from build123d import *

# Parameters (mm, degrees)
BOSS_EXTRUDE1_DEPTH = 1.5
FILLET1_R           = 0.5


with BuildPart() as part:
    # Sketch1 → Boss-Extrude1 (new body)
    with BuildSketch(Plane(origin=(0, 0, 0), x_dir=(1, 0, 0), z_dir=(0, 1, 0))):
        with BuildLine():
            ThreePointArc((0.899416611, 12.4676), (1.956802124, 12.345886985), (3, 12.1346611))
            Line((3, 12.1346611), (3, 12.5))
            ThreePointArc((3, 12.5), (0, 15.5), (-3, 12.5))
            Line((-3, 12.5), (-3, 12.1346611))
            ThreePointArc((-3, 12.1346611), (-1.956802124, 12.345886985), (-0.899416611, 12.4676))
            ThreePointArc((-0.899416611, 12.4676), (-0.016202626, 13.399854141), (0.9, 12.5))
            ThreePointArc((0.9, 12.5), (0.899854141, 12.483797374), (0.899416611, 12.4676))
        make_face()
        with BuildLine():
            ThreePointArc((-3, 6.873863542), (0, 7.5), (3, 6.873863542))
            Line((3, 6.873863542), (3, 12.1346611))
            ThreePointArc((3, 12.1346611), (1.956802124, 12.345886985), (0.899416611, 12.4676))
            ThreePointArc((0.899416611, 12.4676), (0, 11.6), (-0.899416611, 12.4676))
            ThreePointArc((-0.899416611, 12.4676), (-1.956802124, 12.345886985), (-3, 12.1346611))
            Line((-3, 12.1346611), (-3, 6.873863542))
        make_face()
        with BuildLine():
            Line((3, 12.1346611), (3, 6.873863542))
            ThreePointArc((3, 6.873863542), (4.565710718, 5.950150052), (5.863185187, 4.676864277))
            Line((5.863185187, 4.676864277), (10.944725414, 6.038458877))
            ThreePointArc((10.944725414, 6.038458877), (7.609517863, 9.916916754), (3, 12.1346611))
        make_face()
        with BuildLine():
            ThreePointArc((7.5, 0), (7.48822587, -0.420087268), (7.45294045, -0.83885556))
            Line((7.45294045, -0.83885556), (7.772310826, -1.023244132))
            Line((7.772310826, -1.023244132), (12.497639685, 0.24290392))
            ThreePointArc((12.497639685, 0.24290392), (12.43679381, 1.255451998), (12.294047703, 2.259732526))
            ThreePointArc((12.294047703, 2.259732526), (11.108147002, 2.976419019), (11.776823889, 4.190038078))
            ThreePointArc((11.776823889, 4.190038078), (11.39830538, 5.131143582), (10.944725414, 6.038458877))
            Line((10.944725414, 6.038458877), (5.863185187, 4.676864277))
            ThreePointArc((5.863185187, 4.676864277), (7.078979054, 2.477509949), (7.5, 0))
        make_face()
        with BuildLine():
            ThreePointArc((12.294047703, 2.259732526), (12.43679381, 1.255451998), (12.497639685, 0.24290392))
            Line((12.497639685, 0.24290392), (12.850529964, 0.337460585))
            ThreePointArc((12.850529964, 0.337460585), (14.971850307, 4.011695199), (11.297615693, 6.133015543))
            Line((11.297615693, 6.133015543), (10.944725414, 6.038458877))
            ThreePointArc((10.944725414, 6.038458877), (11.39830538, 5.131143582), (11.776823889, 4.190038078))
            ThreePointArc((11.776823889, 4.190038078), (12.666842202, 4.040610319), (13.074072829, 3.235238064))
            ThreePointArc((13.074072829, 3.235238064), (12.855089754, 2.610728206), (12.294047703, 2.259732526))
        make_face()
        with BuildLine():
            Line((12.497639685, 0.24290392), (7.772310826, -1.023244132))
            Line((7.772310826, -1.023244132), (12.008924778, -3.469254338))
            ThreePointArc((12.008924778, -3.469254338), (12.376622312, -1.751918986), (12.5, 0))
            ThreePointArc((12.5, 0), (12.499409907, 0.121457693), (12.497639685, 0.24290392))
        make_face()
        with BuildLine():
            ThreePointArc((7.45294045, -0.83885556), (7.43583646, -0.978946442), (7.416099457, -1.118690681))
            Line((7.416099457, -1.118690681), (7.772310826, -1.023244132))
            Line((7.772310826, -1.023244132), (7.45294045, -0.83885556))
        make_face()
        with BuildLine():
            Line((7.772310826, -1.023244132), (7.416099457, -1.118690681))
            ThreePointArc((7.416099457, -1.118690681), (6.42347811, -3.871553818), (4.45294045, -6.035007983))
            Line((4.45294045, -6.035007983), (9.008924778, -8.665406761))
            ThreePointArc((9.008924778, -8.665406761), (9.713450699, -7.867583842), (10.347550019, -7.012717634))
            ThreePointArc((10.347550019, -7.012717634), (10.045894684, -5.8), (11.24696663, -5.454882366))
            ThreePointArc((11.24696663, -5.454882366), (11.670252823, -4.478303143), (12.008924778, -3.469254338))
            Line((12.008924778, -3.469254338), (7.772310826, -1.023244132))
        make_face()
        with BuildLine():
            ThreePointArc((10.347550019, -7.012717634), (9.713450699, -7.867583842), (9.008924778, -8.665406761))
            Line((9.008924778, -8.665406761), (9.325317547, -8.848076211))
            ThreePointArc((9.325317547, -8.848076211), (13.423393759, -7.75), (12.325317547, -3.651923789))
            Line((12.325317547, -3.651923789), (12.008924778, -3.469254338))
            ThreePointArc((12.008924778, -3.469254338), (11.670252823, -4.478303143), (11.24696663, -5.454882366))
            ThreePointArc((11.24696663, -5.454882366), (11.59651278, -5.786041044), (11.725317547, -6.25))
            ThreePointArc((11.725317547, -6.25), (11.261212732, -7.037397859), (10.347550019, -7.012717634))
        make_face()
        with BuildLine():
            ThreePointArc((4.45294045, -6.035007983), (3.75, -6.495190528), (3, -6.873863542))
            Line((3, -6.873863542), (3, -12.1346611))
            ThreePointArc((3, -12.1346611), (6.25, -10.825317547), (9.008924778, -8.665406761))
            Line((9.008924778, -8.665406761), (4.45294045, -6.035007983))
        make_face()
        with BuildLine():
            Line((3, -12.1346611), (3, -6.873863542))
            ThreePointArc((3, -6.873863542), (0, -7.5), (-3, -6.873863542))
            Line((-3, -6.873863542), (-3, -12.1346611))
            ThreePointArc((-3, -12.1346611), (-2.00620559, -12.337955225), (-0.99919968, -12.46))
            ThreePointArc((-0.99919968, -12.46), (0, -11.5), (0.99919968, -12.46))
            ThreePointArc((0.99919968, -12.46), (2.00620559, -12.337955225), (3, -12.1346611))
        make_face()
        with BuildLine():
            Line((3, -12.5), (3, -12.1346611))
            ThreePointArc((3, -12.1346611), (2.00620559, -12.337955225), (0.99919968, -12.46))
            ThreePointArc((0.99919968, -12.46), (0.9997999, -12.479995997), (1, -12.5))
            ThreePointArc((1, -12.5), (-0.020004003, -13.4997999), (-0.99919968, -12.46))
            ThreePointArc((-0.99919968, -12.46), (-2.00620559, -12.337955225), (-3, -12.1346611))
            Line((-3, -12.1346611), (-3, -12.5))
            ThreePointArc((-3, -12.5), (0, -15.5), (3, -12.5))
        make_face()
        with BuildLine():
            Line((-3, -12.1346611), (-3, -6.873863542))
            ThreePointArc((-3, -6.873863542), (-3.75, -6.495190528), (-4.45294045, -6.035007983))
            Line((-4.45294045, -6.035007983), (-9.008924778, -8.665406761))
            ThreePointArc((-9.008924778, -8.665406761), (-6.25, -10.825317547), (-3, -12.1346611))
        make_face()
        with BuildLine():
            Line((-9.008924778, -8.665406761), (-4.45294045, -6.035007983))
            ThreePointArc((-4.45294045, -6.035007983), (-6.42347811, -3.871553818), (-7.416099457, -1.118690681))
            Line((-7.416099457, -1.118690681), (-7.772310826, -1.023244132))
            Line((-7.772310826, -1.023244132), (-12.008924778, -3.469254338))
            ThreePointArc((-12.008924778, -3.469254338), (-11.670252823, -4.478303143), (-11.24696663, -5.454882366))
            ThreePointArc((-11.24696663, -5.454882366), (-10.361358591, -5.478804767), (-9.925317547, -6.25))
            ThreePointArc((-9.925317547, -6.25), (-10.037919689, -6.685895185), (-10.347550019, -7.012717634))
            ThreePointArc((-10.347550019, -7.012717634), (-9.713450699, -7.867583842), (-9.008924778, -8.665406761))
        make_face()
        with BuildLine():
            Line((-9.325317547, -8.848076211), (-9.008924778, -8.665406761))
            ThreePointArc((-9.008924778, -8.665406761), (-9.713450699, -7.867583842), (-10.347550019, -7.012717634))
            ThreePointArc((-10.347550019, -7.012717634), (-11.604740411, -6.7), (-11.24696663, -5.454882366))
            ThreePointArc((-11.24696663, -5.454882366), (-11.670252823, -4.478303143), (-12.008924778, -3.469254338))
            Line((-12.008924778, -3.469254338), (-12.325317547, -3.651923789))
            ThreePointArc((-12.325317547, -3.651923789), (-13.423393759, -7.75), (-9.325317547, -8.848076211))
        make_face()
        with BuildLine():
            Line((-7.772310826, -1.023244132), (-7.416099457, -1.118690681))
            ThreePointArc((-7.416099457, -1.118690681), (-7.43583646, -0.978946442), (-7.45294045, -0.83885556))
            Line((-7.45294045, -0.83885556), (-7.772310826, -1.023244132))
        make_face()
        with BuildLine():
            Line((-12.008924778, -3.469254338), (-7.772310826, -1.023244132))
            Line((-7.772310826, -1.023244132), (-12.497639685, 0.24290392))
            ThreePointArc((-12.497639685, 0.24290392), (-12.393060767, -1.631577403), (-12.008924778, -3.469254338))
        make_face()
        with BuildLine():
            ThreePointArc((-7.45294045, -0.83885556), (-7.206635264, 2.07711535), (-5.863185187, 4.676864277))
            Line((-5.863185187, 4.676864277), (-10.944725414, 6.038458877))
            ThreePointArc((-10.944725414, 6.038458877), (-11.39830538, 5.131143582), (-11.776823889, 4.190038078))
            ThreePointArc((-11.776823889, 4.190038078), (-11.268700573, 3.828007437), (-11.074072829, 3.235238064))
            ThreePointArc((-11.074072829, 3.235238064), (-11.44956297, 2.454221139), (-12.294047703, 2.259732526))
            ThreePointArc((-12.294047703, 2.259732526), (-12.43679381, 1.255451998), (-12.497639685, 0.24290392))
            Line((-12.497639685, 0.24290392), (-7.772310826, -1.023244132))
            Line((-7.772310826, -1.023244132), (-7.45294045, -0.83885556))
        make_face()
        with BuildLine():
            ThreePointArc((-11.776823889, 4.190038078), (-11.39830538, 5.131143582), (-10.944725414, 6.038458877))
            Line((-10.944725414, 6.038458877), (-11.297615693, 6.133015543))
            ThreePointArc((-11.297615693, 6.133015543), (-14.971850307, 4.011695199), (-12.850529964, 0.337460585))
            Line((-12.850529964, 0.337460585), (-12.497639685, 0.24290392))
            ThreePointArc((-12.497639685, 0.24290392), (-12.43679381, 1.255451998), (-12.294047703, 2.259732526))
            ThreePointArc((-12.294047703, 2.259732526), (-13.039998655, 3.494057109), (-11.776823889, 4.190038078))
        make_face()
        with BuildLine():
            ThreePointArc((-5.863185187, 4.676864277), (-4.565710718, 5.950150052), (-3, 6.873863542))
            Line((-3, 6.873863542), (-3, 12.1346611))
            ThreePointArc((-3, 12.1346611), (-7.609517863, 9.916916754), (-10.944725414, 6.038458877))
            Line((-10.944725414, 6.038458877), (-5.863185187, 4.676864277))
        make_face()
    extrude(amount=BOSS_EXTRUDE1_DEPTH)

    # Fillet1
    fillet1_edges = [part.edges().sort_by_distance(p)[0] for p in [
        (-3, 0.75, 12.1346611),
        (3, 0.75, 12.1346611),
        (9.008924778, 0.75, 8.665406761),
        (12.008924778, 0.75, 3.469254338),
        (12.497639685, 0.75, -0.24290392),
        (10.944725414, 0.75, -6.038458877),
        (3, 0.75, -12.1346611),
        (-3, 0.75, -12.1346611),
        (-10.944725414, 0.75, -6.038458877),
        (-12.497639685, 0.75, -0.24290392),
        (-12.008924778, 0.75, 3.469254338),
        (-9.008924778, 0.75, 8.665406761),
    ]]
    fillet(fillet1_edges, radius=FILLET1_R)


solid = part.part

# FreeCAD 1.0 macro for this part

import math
import FreeCAD as App
import Part
import Sketcher

V = App.Vector
Q = App.Units.Quantity


def edges_at(feature, points):
    """Names of the edges that pass closest to the given points."""
    edges = feature.Shape.Edges
    near = lambda p: min(range(len(edges)), key=lambda i: edges[i].distToShape(Part.Vertex(*p))[0])
    return sorted({f"Edge{near(p) + 1}" for p in points})

doc = App.newDocument("Part")
body = doc.addObject("PartDesign::Body", "Body")

# Sketch on XZ plane
sketch1 = doc.addObject("Sketcher::SketchObject", "Sketch")
body.addObject(sketch1)
sketch1.AttachmentSupport = (doc.XZ_Plane, [""])
sketch1.MapMode = "FlatFace"
sketch1.addGeometry(Part.ArcOfCircle(Part.Circle(V(0, -12.5, 0), V(0, 0, 1), 3), math.radians(180), math.radians(360)), False)
sketch1.addGeometry(Part.LineSegment(V(-3, -12.5, 0), V(-3, -12.135, 0)), False)
sketch1.addGeometry(Part.ArcOfCircle(Part.Circle(V(0, 0, 0), V(0, 0, 1), 12.5), math.radians(-151), math.radians(-104)), False)
sketch1.addGeometry(Part.LineSegment(V(-10.945, -6.038, 0), V(-11.298, -6.133, 0)), False)
sketch1.addGeometry(Part.ArcOfCircle(Part.Circle(V(-12.074, -3.235, 0), V(0, 0, 1), 3), math.radians(105), math.radians(285)), False)
sketch1.addGeometry(Part.LineSegment(V(-12.851, -0.337, 0), V(-12.498, -0.243, 0)), False)
sketch1.addGeometry(Part.ArcOfCircle(Part.Circle(V(0, 0, 0), V(0, 0, 1), 12.5), math.radians(163.89), math.radians(181.11)), False)
sketch1.addGeometry(Part.LineSegment(V(-12.009, 3.469, 0), V(-12.325, 3.652, 0)), False)
sketch1.addGeometry(Part.ArcOfCircle(Part.Circle(V(-10.825, 6.25, 0), V(0, 0, 1), 3), math.radians(60), math.radians(240)), False)
sketch1.addGeometry(Part.LineSegment(V(-9.325, 8.848, 0), V(-9.009, 8.665, 0)), False)
sketch1.addGeometry(Part.ArcOfCircle(Part.Circle(V(0, 0, 0), V(0, 0, 1), 12.5), math.radians(104), math.radians(136)), False)
sketch1.addGeometry(Part.LineSegment(V(-3, 12.135, 0), V(-3, 12.5, 0)), False)
sketch1.addGeometry(Part.ArcOfCircle(Part.Circle(V(0, 12.5, 0), V(0, 0, 1), 3), math.radians(0), math.radians(180)), False)
sketch1.addGeometry(Part.LineSegment(V(3, 12.5, 0), V(3, 12.135, 0)), False)
sketch1.addGeometry(Part.ArcOfCircle(Part.Circle(V(0, 0, 0), V(0, 0, 1), 12.5), math.radians(44), math.radians(76)), False)
sketch1.addGeometry(Part.LineSegment(V(9.009, 8.665, 0), V(9.325, 8.848, 0)), False)
sketch1.addGeometry(Part.ArcOfCircle(Part.Circle(V(10.825, 6.25, 0), V(0, 0, 1), 3), math.radians(-60), math.radians(120)), False)
sketch1.addGeometry(Part.LineSegment(V(12.325, 3.652, 0), V(12.009, 3.469, 0)), False)
sketch1.addGeometry(Part.ArcOfCircle(Part.Circle(V(0, 0, 0), V(0, 0, 1), 12.5), math.radians(0), math.radians(16.11)), False)
sketch1.addGeometry(Part.ArcOfCircle(Part.Circle(V(0, 0, 0), V(0, 0, 1), 12.5), math.radians(-1.11), math.radians(0)), False)
sketch1.addGeometry(Part.LineSegment(V(12.498, -0.243, 0), V(12.851, -0.337, 0)), False)
sketch1.addGeometry(Part.ArcOfCircle(Part.Circle(V(12.074, -3.235, 0), V(0, 0, 1), 3), math.radians(-105), math.radians(75)), False)
sketch1.addGeometry(Part.LineSegment(V(11.298, -6.133, 0), V(10.945, -6.038, 0)), False)
sketch1.addGeometry(Part.ArcOfCircle(Part.Circle(V(0, 0, 0), V(0, 0, 1), 12.5), math.radians(-76), math.radians(-29)), False)
sketch1.addGeometry(Part.LineSegment(V(3, -12.135, 0), V(3, -12.5, 0)), False)
sketch1.addGeometry(Part.ArcOfCircle(Part.Circle(V(0, 0, 0), V(0, 0, 1), 7.5), math.radians(-114), math.radians(-66)), False)
sketch1.addGeometry(Part.ArcOfCircle(Part.Circle(V(0, 0, 0), V(0, 0, 1), 7.5), math.radians(-66), math.radians(-39)), False)
sketch1.addGeometry(Part.ArcOfCircle(Part.Circle(V(0, 0, 0), V(0, 0, 1), 7.5), math.radians(-39), math.radians(0)), False)
sketch1.addGeometry(Part.ArcOfCircle(Part.Circle(V(0, 0, 0), V(0, 0, 1), 7.5), math.radians(0), math.radians(6.42)), False)
sketch1.addGeometry(Part.ArcOfCircle(Part.Circle(V(0, 0, 0), V(0, 0, 1), 7.5), math.radians(6.42), math.radians(8.58)), False)
sketch1.addGeometry(Part.ArcOfCircle(Part.Circle(V(0, 0, 0), V(0, 0, 1), 7.5), math.radians(9), math.radians(54)), False)
sketch1.addGeometry(Part.ArcOfCircle(Part.Circle(V(0, 0, 0), V(0, 0, 1), 7.5), math.radians(53.58), math.radians(66.42)), False)
sketch1.addGeometry(Part.ArcOfCircle(Part.Circle(V(0, 0, 0), V(0, 0, 1), 7.5), math.radians(66), math.radians(114)), False)
sketch1.addGeometry(Part.ArcOfCircle(Part.Circle(V(0, 0, 0), V(0, 0, 1), 7.5), math.radians(113.58), math.radians(126.42)), False)
sketch1.addGeometry(Part.ArcOfCircle(Part.Circle(V(0, 0, 0), V(0, 0, 1), 7.5), math.radians(126), math.radians(171)), False)
sketch1.addGeometry(Part.ArcOfCircle(Part.Circle(V(0, 0, 0), V(0, 0, 1), 7.5), math.radians(171.42), math.radians(173.58)), False)
sketch1.addGeometry(Part.ArcOfCircle(Part.Circle(V(0, 0, 0), V(0, 0, 1), 7.5), math.radians(174), math.radians(219)), False)
sketch1.addGeometry(Part.ArcOfCircle(Part.Circle(V(0, 0, 0), V(0, 0, 1), 7.5), math.radians(-141), math.radians(-114)), False)
sketch1.addGeometry(Part.ArcOfCircle(Part.Circle(V(-12.074, -3.235, 0), V(0, 0, 1), 1), math.radians(-73), math.radians(0)), False)
sketch1.addGeometry(Part.ArcOfCircle(Part.Circle(V(-12.074, -3.235, 0), V(0, 0, 1), 1), math.radians(0), math.radians(103)), False)
sketch1.addGeometry(Part.ArcOfCircle(Part.Circle(V(-12.074, -3.235, 0), V(0, 0, 1), 1), math.radians(103), math.radians(287)), False)
sketch1.addGeometry(Part.ArcOfCircle(Part.Circle(V(-10.825, 6.25, 0), V(0, 0, 1), 0.9), math.radians(-118), math.radians(0)), False)
sketch1.addGeometry(Part.ArcOfCircle(Part.Circle(V(-10.825, 6.25, 0), V(0, 0, 1), 0.9), math.radians(0), math.radians(58)), False)
sketch1.addGeometry(Part.ArcOfCircle(Part.Circle(V(-10.825, 6.25, 0), V(0, 0, 1), 0.9), math.radians(58), math.radians(242)), False)
sketch1.addGeometry(Part.ArcOfCircle(Part.Circle(V(0, 12.5, 0), V(0, 0, 1), 1), math.radians(-178), math.radians(-2)), False)
sketch1.addGeometry(Part.ArcOfCircle(Part.Circle(V(0, 12.5, 0), V(0, 0, 1), 1), math.radians(-2.29), math.radians(0)), False)
sketch1.addGeometry(Part.ArcOfCircle(Part.Circle(V(0, 12.5, 0), V(0, 0, 1), 1), math.radians(0), math.radians(182)), False)
sketch1.addGeometry(Part.ArcOfCircle(Part.Circle(V(10.825, 6.25, 0), V(0, 0, 1), 0.9), math.radians(122), math.radians(298)), False)
sketch1.addGeometry(Part.ArcOfCircle(Part.Circle(V(10.825, 6.25, 0), V(0, 0, 1), 0.9), math.radians(-62), math.radians(0)), False)
sketch1.addGeometry(Part.ArcOfCircle(Part.Circle(V(10.825, 6.25, 0), V(0, 0, 1), 0.9), math.radians(0), math.radians(122)), False)
sketch1.addGeometry(Part.ArcOfCircle(Part.Circle(V(12.074, -3.235, 0), V(0, 0, 1), 1), math.radians(77), math.radians(253)), False)
sketch1.addGeometry(Part.ArcOfCircle(Part.Circle(V(12.074, -3.235, 0), V(0, 0, 1), 1), math.radians(-107), math.radians(0)), False)
sketch1.addGeometry(Part.ArcOfCircle(Part.Circle(V(12.074, -3.235, 0), V(0, 0, 1), 1), math.radians(0), math.radians(77)), False)
sketch1.addGeometry(Part.ArcOfCircle(Part.Circle(V(0, -12.5, 0), V(0, 0, 1), 0.9), math.radians(178), math.radians(360)), False)
sketch1.addGeometry(Part.ArcOfCircle(Part.Circle(V(0, -12.5, 0), V(0, 0, 1), 0.9), math.radians(0), math.radians(2.06)), False)
sketch1.addGeometry(Part.ArcOfCircle(Part.Circle(V(0, -12.5, 0), V(0, 0, 1), 0.9), math.radians(2), math.radians(178)), False)
sketch1.addConstraint(Sketcher.Constraint("Tangent", 0, 1, 1, 1))
sketch1.addConstraint(Sketcher.Constraint("Coincident", 1, 2, 2, 2))
sketch1.addConstraint(Sketcher.Constraint("Coincident", 2, 1, 3, 1))
sketch1.addConstraint(Sketcher.Constraint("Tangent", 3, 2, 4, 2))
sketch1.addConstraint(Sketcher.Constraint("Tangent", 4, 1, 5, 1))
sketch1.addConstraint(Sketcher.Constraint("Coincident", 5, 2, 6, 2))
sketch1.addConstraint(Sketcher.Constraint("Coincident", 6, 1, 7, 1))
sketch1.addConstraint(Sketcher.Constraint("Tangent", 7, 2, 8, 2))
sketch1.addConstraint(Sketcher.Constraint("Tangent", 8, 1, 9, 1))
sketch1.addConstraint(Sketcher.Constraint("Coincident", 9, 2, 10, 2))
sketch1.addConstraint(Sketcher.Constraint("Coincident", 10, 1, 11, 1))
sketch1.addConstraint(Sketcher.Constraint("Tangent", 11, 2, 12, 2))
sketch1.addConstraint(Sketcher.Constraint("Tangent", 12, 1, 13, 1))
sketch1.addConstraint(Sketcher.Constraint("Coincident", 13, 2, 14, 2))
sketch1.addConstraint(Sketcher.Constraint("Coincident", 14, 1, 15, 1))
sketch1.addConstraint(Sketcher.Constraint("Tangent", 15, 2, 16, 2))
sketch1.addConstraint(Sketcher.Constraint("Tangent", 16, 1, 17, 1))
sketch1.addConstraint(Sketcher.Constraint("Coincident", 17, 2, 18, 2))
sketch1.addConstraint(Sketcher.Constraint("Tangent", 18, 1, 19, 2))
sketch1.addConstraint(Sketcher.Constraint("Coincident", 19, 1, 20, 1))
sketch1.addConstraint(Sketcher.Constraint("Tangent", 20, 2, 21, 2))
sketch1.addConstraint(Sketcher.Constraint("Tangent", 21, 1, 22, 1))
sketch1.addConstraint(Sketcher.Constraint("Coincident", 22, 2, 23, 2))
sketch1.addConstraint(Sketcher.Constraint("Coincident", 23, 1, 24, 1))
sketch1.addConstraint(Sketcher.Constraint("Tangent", 24, 2, 0, 2))
sketch1.addConstraint(Sketcher.Constraint("Tangent", 25, 2, 26, 1))
sketch1.addConstraint(Sketcher.Constraint("Tangent", 26, 2, 27, 1))
sketch1.addConstraint(Sketcher.Constraint("Tangent", 27, 2, 28, 1))
sketch1.addConstraint(Sketcher.Constraint("Tangent", 28, 2, 29, 1))
sketch1.addConstraint(Sketcher.Constraint("Tangent", 29, 2, 30, 1))
sketch1.addConstraint(Sketcher.Constraint("Tangent", 30, 2, 31, 1))
sketch1.addConstraint(Sketcher.Constraint("Tangent", 31, 2, 32, 1))
sketch1.addConstraint(Sketcher.Constraint("Tangent", 32, 2, 33, 1))
sketch1.addConstraint(Sketcher.Constraint("Tangent", 33, 2, 34, 1))
sketch1.addConstraint(Sketcher.Constraint("Tangent", 34, 2, 35, 1))
sketch1.addConstraint(Sketcher.Constraint("Tangent", 35, 2, 36, 1))
sketch1.addConstraint(Sketcher.Constraint("Tangent", 36, 2, 37, 1))
sketch1.addConstraint(Sketcher.Constraint("Tangent", 37, 2, 25, 1))
sketch1.addConstraint(Sketcher.Constraint("Tangent", 38, 2, 39, 1))
sketch1.addConstraint(Sketcher.Constraint("Tangent", 39, 2, 40, 1))
sketch1.addConstraint(Sketcher.Constraint("Tangent", 40, 2, 38, 1))
sketch1.addConstraint(Sketcher.Constraint("Tangent", 41, 2, 42, 1))
sketch1.addConstraint(Sketcher.Constraint("Tangent", 42, 2, 43, 1))
sketch1.addConstraint(Sketcher.Constraint("Tangent", 43, 2, 41, 1))
sketch1.addConstraint(Sketcher.Constraint("Tangent", 44, 2, 45, 1))
sketch1.addConstraint(Sketcher.Constraint("Tangent", 45, 2, 46, 1))
sketch1.addConstraint(Sketcher.Constraint("Tangent", 46, 2, 44, 1))
sketch1.addConstraint(Sketcher.Constraint("Tangent", 47, 2, 48, 1))
sketch1.addConstraint(Sketcher.Constraint("Tangent", 48, 2, 49, 1))
sketch1.addConstraint(Sketcher.Constraint("Tangent", 49, 2, 47, 1))
sketch1.addConstraint(Sketcher.Constraint("Tangent", 50, 2, 51, 1))
sketch1.addConstraint(Sketcher.Constraint("Tangent", 51, 2, 52, 1))
sketch1.addConstraint(Sketcher.Constraint("Tangent", 52, 2, 50, 1))
sketch1.addConstraint(Sketcher.Constraint("Tangent", 53, 2, 54, 1))
sketch1.addConstraint(Sketcher.Constraint("Tangent", 54, 2, 55, 1))
sketch1.addConstraint(Sketcher.Constraint("Tangent", 55, 2, 53, 1))
sketch1.addConstraint(Sketcher.Constraint("Vertical", 1))
sketch1.addConstraint(Sketcher.Constraint("Vertical", 11))
sketch1.addConstraint(Sketcher.Constraint("Vertical", 13))
sketch1.addConstraint(Sketcher.Constraint("Vertical", 24))
sketch1.addConstraint(Sketcher.Constraint("Coincident", 2, 3, -1, 1))
sketch1.addConstraint(Sketcher.Constraint("Coincident", 6, 3, -1, 1))
sketch1.addConstraint(Sketcher.Constraint("Coincident", 10, 3, -1, 1))
sketch1.addConstraint(Sketcher.Constraint("Coincident", 14, 3, -1, 1))
sketch1.addConstraint(Sketcher.Constraint("Coincident", 18, 3, -1, 1))
sketch1.addConstraint(Sketcher.Constraint("Coincident", 23, 3, -1, 1))
sketch1.addConstraint(Sketcher.Constraint("Coincident", 25, 3, -1, 1))
sketch1.addConstraint(Sketcher.Constraint("Coincident", 27, 3, -1, 1))
sketch1.addConstraint(Sketcher.Constraint("Coincident", 29, 3, -1, 1))
sketch1.addConstraint(Sketcher.Constraint("Coincident", 31, 3, -1, 1))
sketch1.addConstraint(Sketcher.Constraint("Coincident", 33, 3, -1, 1))
sketch1.addConstraint(Sketcher.Constraint("Coincident", 35, 3, -1, 1))
sketch1.addConstraint(Sketcher.Constraint("Coincident", 38, 3, 4, 3))
sketch1.addConstraint(Sketcher.Constraint("Coincident", 41, 3, 8, 3))
sketch1.addConstraint(Sketcher.Constraint("Coincident", 44, 3, 12, 3))
sketch1.addConstraint(Sketcher.Constraint("Coincident", 47, 3, 16, 3))
sketch1.addConstraint(Sketcher.Constraint("Coincident", 50, 3, 21, 3))
sketch1.addConstraint(Sketcher.Constraint("Coincident", 53, 3, 0, 3))
sketch1.addConstraint(Sketcher.Constraint("Equal", 0, 4))
sketch1.addConstraint(Sketcher.Constraint("Equal", 2, 6))
sketch1.addConstraint(Sketcher.Constraint("Equal", 4, 8))
sketch1.addConstraint(Sketcher.Constraint("Equal", 6, 10))
sketch1.addConstraint(Sketcher.Constraint("Equal", 8, 12))
sketch1.addConstraint(Sketcher.Constraint("Equal", 10, 14))
sketch1.addConstraint(Sketcher.Constraint("Equal", 12, 16))
sketch1.addConstraint(Sketcher.Constraint("Equal", 14, 18))
sketch1.addConstraint(Sketcher.Constraint("Equal", 16, 21))
sketch1.addConstraint(Sketcher.Constraint("Equal", 18, 23))
sketch1.addConstraint(Sketcher.Constraint("Equal", 40, 44))
sketch1.addConstraint(Sketcher.Constraint("Equal", 43, 47))
sketch1.addConstraint(Sketcher.Constraint("Equal", 46, 50))
sketch1.addConstraint(Sketcher.Constraint("Equal", 49, 53))
sketch1.addConstraint(Sketcher.Constraint("Symmetric", 0, 3, 12, 3, -1, 1))
sketch1.addConstraint(Sketcher.Constraint("Symmetric", 8, 3, 16, 3, -2))
sketch1.addConstraint(Sketcher.Constraint("Symmetric", 4, 3, 21, 3, -2))
sketch1.addConstraint(Sketcher.Constraint("Symmetric", 44, 2, 46, 2, -2))
sketch1.addConstraint(Sketcher.Constraint("PointOnObject", 18, 1, -1))
sketch1.addConstraint(Sketcher.Constraint("PointOnObject", 27, 2, -1))
sketch1.addConstraint(Sketcher.Constraint("Parallel", 3, 5))
sketch1.addConstraint(Sketcher.Constraint("Parallel", 7, 9))
sketch1.addConstraint(Sketcher.Constraint("Parallel", 15, 17))
sketch1.addConstraint(Sketcher.Constraint("Parallel", 20, 22))
sketch1.addConstraint(Sketcher.Constraint("Horizontal", 9, 2, 14, 1))
sketch1.addConstraint(Sketcher.Constraint("Horizontal", 5, 2, 19, 1))
sketch1.addConstraint(Sketcher.Constraint("Horizontal", 31, 2, 32, 2))
sketch1.addConstraint(Sketcher.Constraint("Horizontal", 30, 2, 33, 2))
sketch1.addConstraint(Sketcher.Constraint("Horizontal", 29, 2, 34, 2))
sketch1.addConstraint(Sketcher.Constraint("Horizontal", 28, 2, 35, 2))
sketch1.addConstraint(Sketcher.Constraint("Horizontal", 26, 2, 36, 2))
sketch1.addConstraint(Sketcher.Constraint("Horizontal", 25, 2, 37, 2))
sketch1.addConstraint(Sketcher.Constraint("Horizontal", 52, 3, 38, 2))
sketch1.addConstraint(Sketcher.Constraint("Horizontal", 49, 3, 41, 2))
sketch1.addConstraint(Sketcher.Constraint("Horizontal", 12, 1, 45, 2))
sketch1.addConstraint(Sketcher.Constraint("Horizontal", 43, 2, 47, 2))
sketch1.addConstraint(Sketcher.Constraint("Horizontal", 41, 2, 48, 2))
sketch1.addConstraint(Sketcher.Constraint("Horizontal", 42, 2, 49, 2))
sketch1.addConstraint(Sketcher.Constraint("Horizontal", 40, 2, 50, 2))
sketch1.addConstraint(Sketcher.Constraint("Horizontal", 38, 2, 51, 2))
sketch1.addConstraint(Sketcher.Constraint("Horizontal", 39, 2, 52, 2))
sketch1.addConstraint(Sketcher.Constraint("Horizontal", 24, 2, 53, 2))
sketch1.addConstraint(Sketcher.Constraint("Horizontal", 54, 2, 55, 2))
sketch1.addConstraint(Sketcher.Constraint("Vertical", 24, 2, 25, 2))
sketch1.addConstraint(Sketcher.Constraint("Vertical", 25, 2, 31, 2))
sketch1.addConstraint(Sketcher.Constraint("Equal", 3, 5))
sketch1.addConstraint(Sketcher.Constraint("Equal", 5, 7))
sketch1.addConstraint(Sketcher.Constraint("Equal", 7, 9))
sketch1.addConstraint(Sketcher.Constraint("Radius", 0, 3.0))
sketch1.addConstraint(Sketcher.Constraint("Radius", 38, 1.0))
sketch1.addConstraint(Sketcher.Constraint("Radius", 2, 12.5))
sketch1.addConstraint(Sketcher.Constraint("Radius", 25, 7.5))
sketch1.addConstraint(Sketcher.Constraint("Radius", 41, 0.9))
sketch1.addConstraint(Sketcher.Constraint("Angle", 3, Q("-165 deg")))
sketch1.addConstraint(Sketcher.Constraint("Angle", 7, Q("150 deg")))
sketch1.addConstraint(Sketcher.Constraint("DistanceY", 0, 3, -1, 1, 12.5))
sketch1.addConstraint(Sketcher.Constraint("DistanceY", -1, 1, 8, 3, 6.25))
sketch1.addConstraint(Sketcher.Constraint("DistanceY", -1, 1, 44, 2, 12.46))
sketch1.addConstraint(Sketcher.Constraint("Radius", 19, 12.500009))
sketch1.addConstraint(Sketcher.Constraint("DistanceX", -1, 1, 29, 2, 7.416099))
sketch1.addConstraint(Sketcher.Constraint("DistanceY", 54, 2, -1, 1, 12.4676))
sketch1.addConstraint(Sketcher.Constraint("DistanceX", -1, 1, 28, 2, 7.45294))
sketch1.addConstraint(Sketcher.Constraint("DistanceX", -1, 1, 30, 2, 4.45294))
sketch1.addConstraint(Sketcher.Constraint("DistanceY", 40, 2, -1, 1, 4.190038))
sketch1.addConstraint(Sketcher.Constraint("DistanceX", 42, 2, -1, 1, 10.34755))
sketch1.addConstraint(Sketcher.Constraint("DistanceX", -1, 1, 26, 2, 5.863185))
sketch1.addConstraint(Sketcher.Constraint("DistanceX", 39, 2, -1, 1, 12.294048))
sketch1.addConstraint(Sketcher.Constraint("DistanceX", 43, 2, -1, 1, 11.246967))
pad1 = doc.addObject("PartDesign::Pad", "Pad")
body.addObject(pad1)
pad1.Profile = sketch1
pad1.Length = 1.5
pad1.Reversed = True
doc.recompute()

fillet = doc.addObject("PartDesign::Fillet", "Fillet")
body.addObject(fillet)
fillet.Base = (pad1, edges_at(pad1, [
    (-3, 0.75, 12.135),
    (3, 0.75, 12.135),
    (9.009, 0.75, 8.665),
    (12.009, 0.75, 3.469),
    (12.498, 0.75, -0.243),
    (10.945, 0.75, -6.038),
    (3, 0.75, -12.135),
    (-3, 0.75, -12.135),
    (-10.945, 0.75, -6.038),
    (-12.498, 0.75, -0.243),
    (-12.009, 0.75, 3.469),
    (-9.009, 0.75, 8.665),
]))
fillet.Radius = 0.5

doc.recompute()
